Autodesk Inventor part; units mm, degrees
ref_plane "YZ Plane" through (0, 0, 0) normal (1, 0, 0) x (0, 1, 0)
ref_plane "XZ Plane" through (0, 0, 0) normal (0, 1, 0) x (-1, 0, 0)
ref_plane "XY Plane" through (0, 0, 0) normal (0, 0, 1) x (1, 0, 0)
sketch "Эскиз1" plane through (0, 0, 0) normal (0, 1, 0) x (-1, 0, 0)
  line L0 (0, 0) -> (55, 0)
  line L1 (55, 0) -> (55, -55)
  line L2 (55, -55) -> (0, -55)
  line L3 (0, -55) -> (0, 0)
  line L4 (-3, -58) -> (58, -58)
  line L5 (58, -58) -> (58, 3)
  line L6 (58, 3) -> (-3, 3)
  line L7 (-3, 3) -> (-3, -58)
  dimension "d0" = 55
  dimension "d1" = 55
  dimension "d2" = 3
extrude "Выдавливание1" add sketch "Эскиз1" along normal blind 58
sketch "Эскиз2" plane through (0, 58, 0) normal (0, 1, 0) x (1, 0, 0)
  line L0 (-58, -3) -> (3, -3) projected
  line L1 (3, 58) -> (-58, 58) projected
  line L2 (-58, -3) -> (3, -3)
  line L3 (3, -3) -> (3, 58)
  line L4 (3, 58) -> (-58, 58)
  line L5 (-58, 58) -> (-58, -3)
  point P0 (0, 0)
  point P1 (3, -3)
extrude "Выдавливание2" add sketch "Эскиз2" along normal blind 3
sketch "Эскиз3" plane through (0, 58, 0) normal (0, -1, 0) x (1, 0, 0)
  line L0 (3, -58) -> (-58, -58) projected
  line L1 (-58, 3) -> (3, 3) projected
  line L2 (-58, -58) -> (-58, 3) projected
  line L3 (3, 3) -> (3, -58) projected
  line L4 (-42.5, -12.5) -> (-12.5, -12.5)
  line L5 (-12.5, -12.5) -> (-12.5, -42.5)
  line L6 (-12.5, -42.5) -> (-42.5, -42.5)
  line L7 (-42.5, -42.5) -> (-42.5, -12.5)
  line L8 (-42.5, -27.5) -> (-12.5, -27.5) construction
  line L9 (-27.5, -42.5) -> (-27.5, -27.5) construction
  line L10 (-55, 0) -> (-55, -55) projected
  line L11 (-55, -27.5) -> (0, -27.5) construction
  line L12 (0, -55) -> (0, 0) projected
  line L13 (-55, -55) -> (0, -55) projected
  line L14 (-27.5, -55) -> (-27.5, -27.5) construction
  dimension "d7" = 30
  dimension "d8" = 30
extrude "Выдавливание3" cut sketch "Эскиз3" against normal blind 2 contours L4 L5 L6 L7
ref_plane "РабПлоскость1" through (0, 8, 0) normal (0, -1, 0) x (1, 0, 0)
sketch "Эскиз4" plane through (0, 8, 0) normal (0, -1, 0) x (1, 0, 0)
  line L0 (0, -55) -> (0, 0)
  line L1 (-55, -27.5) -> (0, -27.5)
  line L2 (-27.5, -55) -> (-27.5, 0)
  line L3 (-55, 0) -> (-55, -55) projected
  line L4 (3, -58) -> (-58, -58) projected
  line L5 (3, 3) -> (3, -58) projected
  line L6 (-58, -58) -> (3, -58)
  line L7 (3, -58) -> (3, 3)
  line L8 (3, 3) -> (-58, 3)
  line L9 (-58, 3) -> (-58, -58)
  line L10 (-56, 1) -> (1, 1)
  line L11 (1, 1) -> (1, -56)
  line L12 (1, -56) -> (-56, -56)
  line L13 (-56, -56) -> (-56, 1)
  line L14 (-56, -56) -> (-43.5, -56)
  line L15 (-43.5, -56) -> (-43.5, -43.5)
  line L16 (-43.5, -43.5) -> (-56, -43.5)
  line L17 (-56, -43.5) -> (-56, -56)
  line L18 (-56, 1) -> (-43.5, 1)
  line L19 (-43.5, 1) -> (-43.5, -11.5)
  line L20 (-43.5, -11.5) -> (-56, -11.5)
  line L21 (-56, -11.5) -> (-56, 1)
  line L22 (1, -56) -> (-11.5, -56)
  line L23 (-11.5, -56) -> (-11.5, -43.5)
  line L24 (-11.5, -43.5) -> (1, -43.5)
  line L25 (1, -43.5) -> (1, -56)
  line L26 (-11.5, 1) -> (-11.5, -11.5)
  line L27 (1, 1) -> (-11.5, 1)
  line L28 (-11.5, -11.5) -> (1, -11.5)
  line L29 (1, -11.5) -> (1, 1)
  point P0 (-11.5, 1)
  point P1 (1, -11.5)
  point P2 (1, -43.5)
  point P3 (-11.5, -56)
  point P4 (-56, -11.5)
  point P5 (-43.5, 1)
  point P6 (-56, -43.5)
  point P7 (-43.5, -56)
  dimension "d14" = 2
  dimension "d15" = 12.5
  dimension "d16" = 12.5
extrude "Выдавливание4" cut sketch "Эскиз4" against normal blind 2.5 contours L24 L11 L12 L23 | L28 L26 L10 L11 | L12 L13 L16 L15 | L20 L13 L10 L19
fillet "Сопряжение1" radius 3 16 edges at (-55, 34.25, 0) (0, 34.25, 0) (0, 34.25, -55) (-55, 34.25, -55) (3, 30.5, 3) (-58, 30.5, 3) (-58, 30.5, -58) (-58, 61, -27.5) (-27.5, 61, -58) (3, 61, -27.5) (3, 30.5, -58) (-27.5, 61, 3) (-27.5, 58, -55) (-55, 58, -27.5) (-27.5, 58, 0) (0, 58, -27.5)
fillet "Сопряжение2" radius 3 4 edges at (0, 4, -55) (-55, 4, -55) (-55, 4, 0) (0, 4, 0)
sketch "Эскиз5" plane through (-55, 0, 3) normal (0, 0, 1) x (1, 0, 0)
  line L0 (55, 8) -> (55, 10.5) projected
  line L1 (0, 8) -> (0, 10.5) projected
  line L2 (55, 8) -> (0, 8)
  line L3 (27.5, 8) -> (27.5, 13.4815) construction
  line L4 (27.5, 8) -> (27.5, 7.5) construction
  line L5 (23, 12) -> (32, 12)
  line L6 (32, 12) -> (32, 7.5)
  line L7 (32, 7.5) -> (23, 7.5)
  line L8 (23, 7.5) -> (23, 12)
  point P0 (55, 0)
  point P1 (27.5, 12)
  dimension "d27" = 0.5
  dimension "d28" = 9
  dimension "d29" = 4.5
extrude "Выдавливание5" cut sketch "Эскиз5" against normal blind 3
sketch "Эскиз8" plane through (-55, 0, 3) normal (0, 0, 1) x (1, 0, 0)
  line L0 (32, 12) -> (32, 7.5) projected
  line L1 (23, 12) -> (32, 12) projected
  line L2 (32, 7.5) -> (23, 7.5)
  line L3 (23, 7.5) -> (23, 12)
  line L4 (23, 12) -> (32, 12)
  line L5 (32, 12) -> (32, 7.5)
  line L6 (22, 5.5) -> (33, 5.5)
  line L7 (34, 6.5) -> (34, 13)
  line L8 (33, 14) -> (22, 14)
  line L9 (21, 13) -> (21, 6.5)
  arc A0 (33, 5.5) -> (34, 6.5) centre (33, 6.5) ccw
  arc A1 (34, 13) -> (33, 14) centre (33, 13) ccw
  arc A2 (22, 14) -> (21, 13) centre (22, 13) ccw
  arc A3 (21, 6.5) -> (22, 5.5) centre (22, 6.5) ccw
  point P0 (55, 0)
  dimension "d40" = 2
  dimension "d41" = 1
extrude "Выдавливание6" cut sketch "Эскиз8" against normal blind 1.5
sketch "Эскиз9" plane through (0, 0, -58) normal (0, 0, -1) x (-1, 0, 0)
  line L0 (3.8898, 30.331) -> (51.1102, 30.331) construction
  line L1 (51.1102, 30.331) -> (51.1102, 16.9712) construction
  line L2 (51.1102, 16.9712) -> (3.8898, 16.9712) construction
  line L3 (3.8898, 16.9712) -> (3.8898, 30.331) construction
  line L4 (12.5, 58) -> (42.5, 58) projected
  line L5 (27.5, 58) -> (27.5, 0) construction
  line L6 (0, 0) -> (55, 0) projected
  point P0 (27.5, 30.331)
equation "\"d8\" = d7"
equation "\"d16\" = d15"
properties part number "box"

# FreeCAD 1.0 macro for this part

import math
import FreeCAD as App
import Part
import Sketcher
Q = App.Units.Quantity


def edges_at(feature, points):
    """Names of the edges that pass closest to the given points."""
    edges = feature.Shape.Edges
    near = lambda p: min(range(len(edges)), key=lambda i: edges[i].distToShape(Part.Vertex(*p))[0])
    return sorted({f"Edge{near(p) + 1}" for p in points})


def add_polygon(sketch, points):
    """Adds a closed chain of lines whose ends are joined by coincident constraints."""
    first, n = sketch.GeometryCount, len(points)
    for a, b in zip(points, points[1:] + points[:1]):
        sketch.addGeometry(Part.LineSegment(App.Vector(*a, 0), App.Vector(*b, 0)), False)
    for i in range(n):
        sketch.addConstraint(Sketcher.Constraint("Coincident", first + i, 2, first + (i + 1) % n, 1))

doc = App.newDocument("Part")
body = doc.addObject("PartDesign::Body", "Body")

# Sketch on XZ plane
sketch1 = body.newObject("Sketcher::SketchObject", "Sketch")
sketch1.AttachmentSupport = (doc.getObject("XZ_Plane"), [""])
sketch1.MapMode = "FlatFace"
add_polygon(sketch1, [(3, 3), (3, -58), (-58, -58), (-58, 3)])  # lines 0-3
add_polygon(sketch1, [(0, -55), (0, 0), (-55, 0), (-55, -55)])  # lines 4-7
sketch1.addConstraint([
    Sketcher.Constraint("Vertical", 0),
    Sketcher.Constraint("Horizontal", 1),
    Sketcher.Constraint("Vertical", 2),
    Sketcher.Constraint("Horizontal", 3),
    Sketcher.Constraint("Vertical", 4),
    Sketcher.Constraint("Horizontal", 5),
    Sketcher.Constraint("Vertical", 6),
    Sketcher.Constraint("Horizontal", 7),
    Sketcher.Constraint("Coincident", 4, 2, -1, 1),
    Sketcher.Constraint("Equal", 3, 0),
    Sketcher.Constraint("Equal", 7, 4),
    Sketcher.Constraint("DistanceX", 5, 2, 5, 1, Q("55 mm")),
    Sketcher.Constraint("DistanceX", -1, 1, 0, 2, Q("3 mm")),
    Sketcher.Constraint("DistanceY", -1, 1, 2, 2, Q("3 mm")),
    Sketcher.Constraint("DistanceX", 2, 2, 5, 2, Q("3 mm")),
])
pad1 = body.newObject("PartDesign::Pad", "Pad")
pad1.Profile = sketch1
pad1.Length = 58
pad1.Reversed = True

# Sketch on XZ plane
sketch2 = body.newObject("Sketcher::SketchObject", "Sketch001")
sketch2.AttachmentSupport = (doc.getObject("XZ_Plane"), [""])
sketch2.MapMode = "FlatFace"
sketch2.AttachmentOffset = App.Placement(App.Vector(0, 0, -58), App.Rotation())
add_polygon(sketch2, [(-58, -58), (-58, 3), (3, 3), (3, -58)])  # lines 0-3
sketch2.addConstraint([
    Sketcher.Constraint("Vertical", 0),
    Sketcher.Constraint("Horizontal", 1),
    Sketcher.Constraint("Vertical", 2),
    Sketcher.Constraint("Horizontal", 3),
    Sketcher.Constraint("Equal", 3, 0),
    Sketcher.Constraint("DistanceX", 1, 1, 1, 2, Q("61 mm")),
    Sketcher.Constraint("DistanceX", 0, 2, -1, 1, Q("58 mm")),
    Sketcher.Constraint("DistanceY", -1, 1, 0, 2, Q("3 mm")),
])
pad2 = body.newObject("PartDesign::Pad", "Pad001")
pad2.Profile = sketch2
pad2.Length = 3
pad2.Reversed = True

# Sketch on XZ plane
sketch3 = body.newObject("Sketcher::SketchObject", "Sketch002")
sketch3.AttachmentSupport = (doc.getObject("XZ_Plane"), [""])
sketch3.MapMode = "FlatFace"
sketch3.AttachmentOffset = App.Placement(App.Vector(0, 0, -58), App.Rotation())
add_polygon(sketch3, [(-12, -12), (-42, -12), (-42, -42), (-12, -42)])  # lines 0-3
sketch3.addConstraint([
    Sketcher.Constraint("Horizontal", 0),
    Sketcher.Constraint("Vertical", 1),
    Sketcher.Constraint("Horizontal", 2),
    Sketcher.Constraint("Vertical", 3),
    Sketcher.Constraint("Equal", 2, 1),
    Sketcher.Constraint("DistanceX", 0, 2, 0, 1, Q("30 mm")),
    Sketcher.Constraint("DistanceX", 0, 2, -1, 1, Q("42.5 mm")),
    Sketcher.Constraint("DistanceY", 0, 2, -1, 1, Q("12.5 mm")),
])
pocket1 = body.newObject("PartDesign::Pocket", "Pocket")
pocket1.Profile = sketch3
pocket1.Length = 2

# Sketch on XZ plane
sketch4 = body.newObject("Sketcher::SketchObject", "Sketch003")
sketch4.AttachmentSupport = (doc.getObject("XZ_Plane"), [""])
sketch4.MapMode = "FlatFace"
sketch4.AttachmentOffset = App.Placement(App.Vector(0, 0, -8), App.Rotation())
add_polygon(sketch4, [(1, -44), (-12, -44), (-12, -56), (1, -56)])  # lines 0-3
add_polygon(sketch4, [(-12, -12), (1, -12), (1, 1), (-12, 1)])  # lines 4-7
add_polygon(sketch4, [(-56, -56), (-44, -56), (-44, -44), (-56, -44)])  # lines 8-11
add_polygon(sketch4, [(-56, -12), (-44, -12), (-44, 1), (-56, 1)])  # lines 12-15
sketch4.addConstraint([
    Sketcher.Constraint("Horizontal", 0),
    Sketcher.Constraint("Vertical", 1),
    Sketcher.Constraint("Horizontal", 2),
    Sketcher.Constraint("Vertical", 3),
    Sketcher.Constraint("Horizontal", 4),
    Sketcher.Constraint("Vertical", 5),
    Sketcher.Constraint("Horizontal", 6),
    Sketcher.Constraint("Vertical", 7),
    Sketcher.Constraint("Horizontal", 8),
    Sketcher.Constraint("Vertical", 9),
    Sketcher.Constraint("Horizontal", 10),
    Sketcher.Constraint("Vertical", 11),
    Sketcher.Constraint("Horizontal", 12),
    Sketcher.Constraint("Vertical", 13),
    Sketcher.Constraint("Horizontal", 14),
    Sketcher.Constraint("Vertical", 15),
    Sketcher.Constraint("Horizontal", 2, 2, 8, 2),
    Sketcher.Constraint("Horizontal", 3, 2, 9, 2),
    Sketcher.Constraint("Horizontal", 7, 2, 12, 2),
    Sketcher.Constraint("Horizontal", 6, 2, 13, 2),
    Sketcher.Constraint("Vertical", 3, 2, 4, 2),
    Sketcher.Constraint("Vertical", 1, 2, 6, 2),
    Sketcher.Constraint("Vertical", 9, 2, 12, 2),
    Sketcher.Constraint("Vertical", 11, 2, 14, 2),
    Sketcher.Constraint("Equal", 6, 8),
    Sketcher.Constraint("Equal", 14, 1),
    Sketcher.Constraint("Equal", 3, 5),
    Sketcher.Constraint("DistanceX", 0, 2, 0, 1, Q("12.5 mm")),
    Sketcher.Constraint("DistanceY", 1, 2, -1, 1, Q("56 mm")),
    Sketcher.Constraint("DistanceX", -1, 1, 2, 2, Q("1 mm")),
    Sketcher.Constraint("DistanceY", -1, 1, 5, 2, Q("1 mm")),
    Sketcher.Constraint("DistanceX", 10, 2, -1, 1, Q("56 mm")),
])
pocket2 = body.newObject("PartDesign::Pocket", "Pocket001")
pocket2.Profile = sketch4
pocket2.Length = 2.5
doc.recompute()

fillet = body.newObject("PartDesign::Fillet", "Fillet")
fillet.Base = (pocket2, edges_at(pocket2, [
    (-55, 34.25, 0),
    (0, 34.25, 0),
    (0, 34.25, -55),
    (-55, 34.25, -55),
    (3, 30.5, 3),
    (-58, 30.5, 3),
    (-58, 30.5, -58),
    (-58, 61, -27.5),
    (-27.5, 61, -58),
    (3, 61, -27.5),
    (3, 30.5, -58),
    (-27.5, 61, 3),
    (-27.5, 58, -55),
    (-55, 58, -27.5),
    (-27.5, 58, 0),
    (0, 58, -27.5),
]))
fillet.Radius = 3
doc.recompute()

fillet2 = body.newObject("PartDesign::Fillet", "Fillet001")
fillet2.Base = (fillet, edges_at(fillet, [
    (0, 4, -55),
    (-55, 4, -55),
    (-55, 4, 0),
    (0, 4, 0),
]))
fillet2.Radius = 3

# Sketch on XY plane
sketch5 = body.newObject("Sketcher::SketchObject", "Sketch004")
sketch5.AttachmentSupport = (doc.getObject("XY_Plane"), [""])
sketch5.MapMode = "FlatFace"
sketch5.AttachmentOffset = App.Placement(App.Vector(0, 0, 3), App.Rotation())
add_polygon(sketch5, [(-23, 7.5), (-23, 12), (-32, 12), (-32, 7.5)])  # lines 0-3
sketch5.addConstraint([
    Sketcher.Constraint("Vertical", 0),
    Sketcher.Constraint("Horizontal", 1),
    Sketcher.Constraint("Vertical", 2),
    Sketcher.Constraint("Horizontal", 3),
    Sketcher.Constraint("DistanceX", 1, 2, 1, 1, Q("9 mm")),
    Sketcher.Constraint("DistanceY", 0, 1, 0, 2, Q("4.5 mm")),
    Sketcher.Constraint("DistanceX", 0, 2, -1, 1, Q("23 mm")),
    Sketcher.Constraint("DistanceY", -1, 1, 0, 2, Q("12 mm")),
])
pocket3 = body.newObject("PartDesign::Pocket", "Pocket002")
pocket3.Profile = sketch5
pocket3.Length = 3

# Sketch on XY plane
sketch6 = body.newObject("Sketcher::SketchObject", "Sketch005")
sketch6.AttachmentSupport = (doc.getObject("XY_Plane"), [""])
sketch6.MapMode = "FlatFace"
sketch6.AttachmentOffset = App.Placement(App.Vector(0, 0, 3), App.Rotation())
sketch6.addGeometry(Part.ArcOfCircle(Part.Circle(App.Vector(-33, 6.5, 0), App.Vector(0, 0, 1), 1), math.radians(180), math.radians(270)), False)  # 0
sketch6.addGeometry(Part.LineSegment(App.Vector(-33, 5.5, 0), App.Vector(-22, 5.5, 0)), False)  # 1
sketch6.addGeometry(Part.ArcOfCircle(Part.Circle(App.Vector(-22, 6.5, 0), App.Vector(0, 0, 1), 1), math.radians(-90), math.radians(0)), False)  # 2
sketch6.addGeometry(Part.LineSegment(App.Vector(-21, 6.5, 0), App.Vector(-21, 13, 0)), False)  # 3
sketch6.addGeometry(Part.ArcOfCircle(Part.Circle(App.Vector(-22, 13, 0), App.Vector(0, 0, 1), 1), math.radians(0), math.radians(90)), False)  # 4
sketch6.addGeometry(Part.LineSegment(App.Vector(-22, 14, 0), App.Vector(-33, 14, 0)), False)  # 5
sketch6.addGeometry(Part.ArcOfCircle(Part.Circle(App.Vector(-33, 13, 0), App.Vector(0, 0, 1), 1), math.radians(90), math.radians(180)), False)  # 6
sketch6.addGeometry(Part.LineSegment(App.Vector(-34, 13, 0), App.Vector(-34, 6.5, 0)), False)  # 7
add_polygon(sketch6, [(-32, 12), (-23, 12), (-23, 7.5), (-32, 7.5)])  # lines 8-11
sketch6.addConstraint([
    Sketcher.Constraint("Tangent", 0, 2, 1, 1),
    Sketcher.Constraint("Tangent", 1, 2, 2, 1),
    Sketcher.Constraint("Tangent", 2, 2, 3, 1),
    Sketcher.Constraint("Tangent", 3, 2, 4, 1),
    Sketcher.Constraint("Tangent", 4, 2, 5, 1),
    Sketcher.Constraint("Tangent", 5, 2, 6, 1),
    Sketcher.Constraint("Tangent", 6, 2, 7, 1),
    Sketcher.Constraint("Tangent", 7, 2, 0, 1),
    Sketcher.Constraint("Horizontal", 1),
    Sketcher.Constraint("Vertical", 3),
    Sketcher.Constraint("Horizontal", 5),
    Sketcher.Constraint("Vertical", 7),
    Sketcher.Constraint("Horizontal", 8),
    Sketcher.Constraint("Vertical", 9),
    Sketcher.Constraint("Horizontal", 10),
    Sketcher.Constraint("Vertical", 11),
    Sketcher.Constraint("Equal", 0, 2),
    Sketcher.Constraint("Equal", 2, 4),
    Sketcher.Constraint("Equal", 4, 6),
    Sketcher.Constraint("Radius", 0, Q("1 mm")),
    Sketcher.Constraint("DistanceX", 8, 2, 4, 3, Q("1 mm")),
    Sketcher.Constraint("DistanceY", 8, 2, 4, 3, Q("1 mm")),
    Sketcher.Constraint("DistanceY", 2, 3, 9, 2, Q("1 mm")),
    Sketcher.Constraint("DistanceX", 0, 3, 10, 2, Q("1 mm")),
    Sketcher.Constraint("DistanceX", 1, 1, 1, 2, Q("11 mm")),
    Sketcher.Constraint("DistanceY", 3, 1, 3, 2, Q("6.5 mm")),
    Sketcher.Constraint("DistanceX", 0, 3, -1, 1, Q("33 mm")),
    Sketcher.Constraint("DistanceY", -1, 1, 4, 3, Q("13 mm")),
])
pocket4 = body.newObject("PartDesign::Pocket", "Pocket003")
pocket4.Profile = sketch6
pocket4.Length = 1.5

doc.recompute()
